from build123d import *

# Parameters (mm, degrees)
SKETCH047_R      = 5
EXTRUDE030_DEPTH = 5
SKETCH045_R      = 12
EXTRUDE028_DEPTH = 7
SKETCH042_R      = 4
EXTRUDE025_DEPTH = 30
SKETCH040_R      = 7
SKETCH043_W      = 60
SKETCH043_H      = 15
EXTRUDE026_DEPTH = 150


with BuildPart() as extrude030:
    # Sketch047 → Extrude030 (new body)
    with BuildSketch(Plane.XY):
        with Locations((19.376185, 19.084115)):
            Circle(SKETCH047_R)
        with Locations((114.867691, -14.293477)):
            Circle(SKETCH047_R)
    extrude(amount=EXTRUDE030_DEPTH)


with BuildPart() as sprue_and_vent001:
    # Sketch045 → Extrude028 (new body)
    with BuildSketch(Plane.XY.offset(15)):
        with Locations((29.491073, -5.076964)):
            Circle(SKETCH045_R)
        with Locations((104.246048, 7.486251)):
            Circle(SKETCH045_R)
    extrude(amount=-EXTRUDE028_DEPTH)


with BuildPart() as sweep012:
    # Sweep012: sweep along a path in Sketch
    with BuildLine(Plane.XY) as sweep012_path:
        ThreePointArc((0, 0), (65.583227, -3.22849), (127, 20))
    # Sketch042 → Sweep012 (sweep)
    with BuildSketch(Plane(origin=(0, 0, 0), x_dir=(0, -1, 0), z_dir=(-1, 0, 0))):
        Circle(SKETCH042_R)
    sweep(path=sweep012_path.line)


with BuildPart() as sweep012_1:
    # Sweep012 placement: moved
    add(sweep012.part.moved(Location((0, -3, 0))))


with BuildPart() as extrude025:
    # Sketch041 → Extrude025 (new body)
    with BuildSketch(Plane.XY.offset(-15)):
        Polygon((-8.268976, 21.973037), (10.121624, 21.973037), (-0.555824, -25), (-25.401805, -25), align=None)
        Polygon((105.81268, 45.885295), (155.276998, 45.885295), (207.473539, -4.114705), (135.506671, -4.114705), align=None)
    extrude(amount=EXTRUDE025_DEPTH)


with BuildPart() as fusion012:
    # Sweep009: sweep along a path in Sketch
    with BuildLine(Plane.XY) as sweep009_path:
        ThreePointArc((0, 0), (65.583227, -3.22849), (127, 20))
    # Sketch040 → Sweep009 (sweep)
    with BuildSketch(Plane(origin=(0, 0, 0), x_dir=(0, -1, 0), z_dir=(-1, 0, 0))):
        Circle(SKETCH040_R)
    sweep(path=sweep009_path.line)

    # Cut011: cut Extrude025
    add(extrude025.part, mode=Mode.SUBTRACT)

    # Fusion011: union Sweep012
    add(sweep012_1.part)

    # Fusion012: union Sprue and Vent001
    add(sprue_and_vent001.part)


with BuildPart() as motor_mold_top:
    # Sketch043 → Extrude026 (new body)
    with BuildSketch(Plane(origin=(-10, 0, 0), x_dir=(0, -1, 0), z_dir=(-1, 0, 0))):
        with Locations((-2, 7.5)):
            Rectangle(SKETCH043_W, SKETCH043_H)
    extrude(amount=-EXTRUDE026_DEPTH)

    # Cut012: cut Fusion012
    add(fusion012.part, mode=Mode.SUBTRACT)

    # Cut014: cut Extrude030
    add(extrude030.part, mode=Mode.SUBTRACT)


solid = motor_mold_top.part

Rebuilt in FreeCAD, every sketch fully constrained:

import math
import FreeCAD as App
import Part
import Sketcher

doc = App.newDocument("Part")
body = doc.addObject("PartDesign::Body", "Body")
body.AllowCompound = True

sketch1 = body.newObject("Sketcher::SketchObject", "Sketch")
sketch1.AttachmentSupport = (doc.getObject("XY_Plane"), [""])
sketch1.MapMode = "FlatFace"
sketch1.addGeometry(Part.Circle(App.Vector(19, 19, 0), App.Vector(0, 0, 1), 5), False)
sketch1.addGeometry(Part.Circle(App.Vector(115, -14, 0), App.Vector(0, 0, 1), 5), False)
sketch1.addConstraint(Sketcher.Constraint("Equal", 0, 1))
sketch1.addConstraint(Sketcher.Constraint("Diameter", 0, 10.0))
sketch1.addConstraint(Sketcher.Constraint("DistanceX", -1, 1, 1, 3, 114.867691))
sketch1.addConstraint(Sketcher.Constraint("DistanceX", -1, 1, 0, 3, 19.376185))
sketch1.addConstraint(Sketcher.Constraint("DistanceY", -1, 1, 0, 3, 19.084115))
sketch1.addConstraint(Sketcher.Constraint("DistanceY", 1, 3, -1, 1, 14.293477))
pad1 = body.newObject("PartDesign::Pad", "Pad")
pad1.Profile = sketch1
pad1.Length = 5
body2 = doc.addObject("PartDesign::Body", "Body001")
body2.AllowCompound = True

sketch2 = body2.newObject("Sketcher::SketchObject", "Sketch001")
sketch2.AttachmentSupport = (doc.getObject("XY_Plane001"), [""])
sketch2.MapMode = "FlatFace"
sketch2.AttachmentOffset = App.Placement(App.Vector(0, 0, 15), App.Rotation())
sketch2.addGeometry(Part.Circle(App.Vector(29, -5, 0), App.Vector(0, 0, 1), 12), False)
sketch2.addGeometry(Part.Circle(App.Vector(104, 7, 0), App.Vector(0, 0, 1), 12), False)
sketch2.addConstraint(Sketcher.Constraint("Equal", 0, 1))
sketch2.addConstraint(Sketcher.Constraint("Diameter", 0, 24.0))
sketch2.addConstraint(Sketcher.Constraint("DistanceX", -1, 1, 1, 3, 104.246048))
sketch2.addConstraint(Sketcher.Constraint("DistanceY", -1, 1, 1, 3, 7.486251))
sketch2.addConstraint(Sketcher.Constraint("DistanceX", -1, 1, 0, 3, 29.491073))
sketch2.addConstraint(Sketcher.Constraint("DistanceY", 0, 3, -1, 1, 5.076964))
pad2 = body2.newObject("PartDesign::Pad", "Pad001")
pad2.Profile = sketch2
pad2.Length = 7
pad2.Reversed = True
body3 = doc.addObject("PartDesign::Body", "Body002")

sketch3 = body3.newObject("Sketcher::SketchObject", "Sketch002")
sketch3.AttachmentSupport = (doc.getObject("YZ_Plane002"), [""])
sketch3.MapMode = "FlatFace"
sketch3.addGeometry(Part.Circle(App.Vector(0, 0, 0), App.Vector(0, 0, 1), 4), False)
sketch3.addConstraint(Sketcher.Constraint("Coincident", 0, 3, -1, 1))
sketch3.addConstraint(Sketcher.Constraint("Diameter", 0, 8.0))

sketch4 = body3.newObject("Sketcher::SketchObject", "Sketch003")
sketch4.AttachmentSupport = (doc.getObject("XY_Plane002"), [""])
sketch4.MapMode = "FlatFace"
sketch4.addGeometry(Part.ArcOfCircle(Part.Circle(App.Vector(41, 156, 0), App.Vector(0, 0, 1), 161), math.radians(-105), math.radians(-58)), False)
sketch4.addConstraint(Sketcher.Constraint("Coincident", 0, 1, -1, 1))
sketch4.addConstraint(Sketcher.Constraint("DistanceX", -1, 1, 0, 2, 127.0))
sketch4.addConstraint(Sketcher.Constraint("DistanceY", -1, 1, 0, 2, 20.0))
sketch4.addConstraint(Sketcher.Constraint("Radius", 0, 160.981841))
doc.recompute()

additivepipe = body3.newObject("PartDesign::AdditivePipe", "AdditivePipe")
additivepipe.Profile = sketch3
additivepipe.Spine = (sketch4, ["Edge1"])
body4 = doc.addObject("PartDesign::Body", "Body003")
doc.recompute()

body3.Placement = App.Placement(App.Vector(0, -3, 0), App.Rotation(App.Vector(0, 0, 1), 0))
boolean = body4.newObject("PartDesign::Boolean", "Boolean")
boolean.Type = "Fuse"
boolean.addObjects([body3])
body5 = doc.addObject("PartDesign::Body", "Body004")
body5.AllowCompound = True

sketch5 = body5.newObject("Sketcher::SketchObject", "Sketch004")
sketch5.AttachmentSupport = (doc.getObject("XY_Plane004"), [""])
sketch5.MapMode = "FlatFace"
sketch5.AttachmentOffset = App.Placement(App.Vector(0, 0, -15), App.Rotation())
sketch5.addGeometry(Part.LineSegment(App.Vector(10, 22, 0), App.Vector(-8, 22, 0)), False)
sketch5.addGeometry(Part.LineSegment(App.Vector(-8, 22, 0), App.Vector(-25, -25, 0)), False)
sketch5.addGeometry(Part.LineSegment(App.Vector(-25, -25, 0), App.Vector(-1, -25, 0)), False)
sketch5.addGeometry(Part.LineSegment(App.Vector(-1, -25, 0), App.Vector(10, 22, 0)), False)
sketch5.addGeometry(Part.LineSegment(App.Vector(155, 46, 0), App.Vector(106, 46, 0)), False)
sketch5.addGeometry(Part.LineSegment(App.Vector(106, 46, 0), App.Vector(136, -4, 0)), False)
sketch5.addGeometry(Part.LineSegment(App.Vector(136, -4, 0), App.Vector(207, -4, 0)), False)
sketch5.addGeometry(Part.LineSegment(App.Vector(207, -4, 0), App.Vector(155, 46, 0)), False)
sketch5.addConstraint(Sketcher.Constraint("Coincident", 0, 2, 1, 1))
sketch5.addConstraint(Sketcher.Constraint("Coincident", 1, 2, 2, 1))
sketch5.addConstraint(Sketcher.Constraint("Coincident", 2, 2, 3, 1))
sketch5.addConstraint(Sketcher.Constraint("Coincident", 3, 2, 0, 1))
sketch5.addConstraint(Sketcher.Constraint("Coincident", 4, 2, 5, 1))
sketch5.addConstraint(Sketcher.Constraint("Coincident", 5, 2, 6, 1))
sketch5.addConstraint(Sketcher.Constraint("Coincident", 6, 2, 7, 1))
sketch5.addConstraint(Sketcher.Constraint("Coincident", 7, 2, 4, 1))
sketch5.addConstraint(Sketcher.Constraint("Horizontal", 0))
sketch5.addConstraint(Sketcher.Constraint("Horizontal", 2))
sketch5.addConstraint(Sketcher.Constraint("Horizontal", 4))
sketch5.addConstraint(Sketcher.Constraint("Horizontal", 6))
sketch5.addConstraint(Sketcher.Constraint("Distance", 1, 50.0))
sketch5.addConstraint(Sketcher.Constraint("DistanceY", 1, 2, -1, 1, 25.0))
sketch5.addConstraint(Sketcher.Constraint("DistanceY", 5, 2, 4, 2, 50.0))
sketch5.addConstraint(Sketcher.Constraint("DistanceX", 0, 2, 0, 1, 18.3906))
sketch5.addConstraint(Sketcher.Constraint("DistanceX", -1, 1, 7, 2, 155.276998))
sketch5.addConstraint(Sketcher.Constraint("Distance", 3, 48.1713))
sketch5.addConstraint(Sketcher.Constraint("DistanceX", 2, 1, 2, 2, 24.845981))
sketch5.addConstraint(Sketcher.Constraint("Distance", 5, 58.152671))
sketch5.addConstraint(Sketcher.Constraint("DistanceX", 4, 2, 4, 1, 49.464318))
sketch5.addConstraint(Sketcher.Constraint("DistanceX", 6, 1, 6, 2, 71.966868))
sketch5.addConstraint(Sketcher.Constraint("DistanceX", 0, 2, -1, 1, 8.268976))
sketch5.addConstraint(Sketcher.Constraint("DistanceY", -1, 1, 4, 2, 45.885295))
pad3 = body5.newObject("PartDesign::Pad", "Pad002")
pad3.Profile = sketch5
pad3.Length = 30
body6 = doc.addObject("PartDesign::Body", "Body005")
body6.AllowCompound = True

sketch6 = body6.newObject("Sketcher::SketchObject", "Sketch005")
sketch6.AttachmentSupport = (doc.getObject("YZ_Plane005"), [""])
sketch6.MapMode = "FlatFace"
sketch6.addGeometry(Part.Circle(App.Vector(0, 0, 0), App.Vector(0, 0, 1), 7), False)
sketch6.addConstraint(Sketcher.Constraint("Coincident", 0, 3, -1, 1))
sketch6.addConstraint(Sketcher.Constraint("Diameter", 0, 14.0))

sketch7 = body6.newObject("Sketcher::SketchObject", "Sketch006")
sketch7.AttachmentSupport = (doc.getObject("XY_Plane005"), [""])
sketch7.MapMode = "FlatFace"
sketch7.addGeometry(Part.ArcOfCircle(Part.Circle(App.Vector(41, 156, 0), App.Vector(0, 0, 1), 161), math.radians(-105), math.radians(-58)), False)
sketch7.addConstraint(Sketcher.Constraint("Coincident", 0, 1, -1, 1))
sketch7.addConstraint(Sketcher.Constraint("DistanceX", -1, 1, 0, 2, 127.0))
sketch7.addConstraint(Sketcher.Constraint("DistanceY", -1, 1, 0, 2, 20.0))
sketch7.addConstraint(Sketcher.Constraint("Radius", 0, 160.981841))
doc.recompute()

additivepipe2 = body6.newObject("PartDesign::AdditivePipe", "AdditivePipe001")
additivepipe2.Profile = sketch6
additivepipe2.Spine = (sketch7, ["Edge1"])
doc.recompute()

boolean2 = body6.newObject("PartDesign::Boolean", "Boolean001")
boolean2.Type = "Cut"
boolean2.addObjects([body5])
doc.recompute()

boolean3 = body6.newObject("PartDesign::Boolean", "Boolean002")
boolean3.Type = "Fuse"
boolean3.addObjects([body4])
doc.recompute()

boolean4 = body6.newObject("PartDesign::Boolean", "Boolean003")
boolean4.Type = "Fuse"
boolean4.addObjects([body2])
body7 = doc.addObject("PartDesign::Body", "Body006")

sketch8 = body7.newObject("Sketcher::SketchObject", "Sketch007")
sketch8.AttachmentSupport = (doc.getObject("YZ_Plane006"), [""])
sketch8.MapMode = "FlatFace"
sketch8.AttachmentOffset = App.Placement(App.Vector(0, 0, -10), App.Rotation())
sketch8.addGeometry(Part.LineSegment(App.Vector(32, 15, 0), App.Vector(32, 0, 0)), False)
sketch8.addGeometry(Part.LineSegment(App.Vector(32, 0, 0), App.Vector(-28, 0, 0)), False)
sketch8.addGeometry(Part.LineSegment(App.Vector(-28, 0, 0), App.Vector(-28, 15, 0)), False)
sketch8.addGeometry(Part.LineSegment(App.Vector(-28, 15, 0), App.Vector(32, 15, 0)), False)
sketch8.addConstraint(Sketcher.Constraint("Coincident", 0, 2, 1, 1))
sketch8.addConstraint(Sketcher.Constraint("Coincident", 1, 2, 2, 1))
sketch8.addConstraint(Sketcher.Constraint("Coincident", 2, 2, 3, 1))
sketch8.addConstraint(Sketcher.Constraint("Coincident", 3, 2, 0, 1))
sketch8.addConstraint(Sketcher.Constraint("Vertical", 0))
sketch8.addConstraint(Sketcher.Constraint("Horizontal", 1))
sketch8.addConstraint(Sketcher.Constraint("Vertical", 2))
sketch8.addConstraint(Sketcher.Constraint("Horizontal", 3))
sketch8.addConstraint(Sketcher.Constraint("PointOnObject", 0, 2, -1))
sketch8.addConstraint(Sketcher.Constraint("DistanceX", 1, 2, 1, 1, 60.0))
sketch8.addConstraint(Sketcher.Constraint("DistanceY", 0, 2, 0, 1, 15.0))
sketch8.addConstraint(Sketcher.Constraint("DistanceX", -1, 1, 0, 2, 32.0))
pad4 = body7.newObject("PartDesign::Pad", "Pad003")
pad4.Profile = sketch8
pad4.Length = 150
doc.recompute()

boolean5 = body7.newObject("PartDesign::Boolean", "Boolean004")
boolean5.Type = "Cut"
boolean5.addObjects([body6])
doc.recompute()

boolean6 = body7.newObject("PartDesign::Boolean", "Boolean005")
boolean6.Type = "Cut"
boolean6.addObjects([body])

doc.recompute()
